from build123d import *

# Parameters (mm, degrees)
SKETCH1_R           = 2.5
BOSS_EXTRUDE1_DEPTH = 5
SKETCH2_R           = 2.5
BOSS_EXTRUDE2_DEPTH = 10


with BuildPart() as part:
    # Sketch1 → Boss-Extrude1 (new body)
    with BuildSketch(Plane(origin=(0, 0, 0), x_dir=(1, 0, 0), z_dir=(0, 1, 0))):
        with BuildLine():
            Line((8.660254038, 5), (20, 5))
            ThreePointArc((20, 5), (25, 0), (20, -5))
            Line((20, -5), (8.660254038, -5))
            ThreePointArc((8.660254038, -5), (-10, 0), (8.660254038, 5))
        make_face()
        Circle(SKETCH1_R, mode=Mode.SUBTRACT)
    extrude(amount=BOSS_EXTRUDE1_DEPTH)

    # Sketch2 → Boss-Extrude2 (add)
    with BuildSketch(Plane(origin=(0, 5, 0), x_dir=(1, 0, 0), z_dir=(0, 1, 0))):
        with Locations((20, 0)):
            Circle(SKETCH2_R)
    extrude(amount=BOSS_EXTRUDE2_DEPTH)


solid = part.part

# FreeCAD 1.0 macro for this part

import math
import FreeCAD as App
import Part
import Sketcher
Q = App.Units.Quantity

doc = App.newDocument("Part")
body = doc.addObject("PartDesign::Body", "Body")

# Sketch on XZ plane
sketch1 = body.newObject("Sketcher::SketchObject", "Sketch")
sketch1.AttachmentSupport = (doc.getObject("XZ_Plane"), [""])
sketch1.MapMode = "FlatFace"
sketch1.addGeometry(Part.LineSegment(App.Vector(20, -5, 0), App.Vector(8.7, -5, 0)), False)
sketch1.addGeometry(Part.ArcOfCircle(Part.Circle(App.Vector(0, 0, 0), App.Vector(0, 0, 1), 10), math.radians(30), math.radians(330)), False)
sketch1.addGeometry(Part.LineSegment(App.Vector(8.7, 5, 0), App.Vector(20, 5, 0)), False)
sketch1.addGeometry(Part.ArcOfCircle(Part.Circle(App.Vector(20, 0, 0), App.Vector(0, 0, 1), 5), math.radians(-90), math.radians(90)), False)
sketch1.addGeometry(Part.Circle(App.Vector(0, 0, 0), App.Vector(0, 0, 1), 2.5), False)
sketch1.addConstraint(Sketcher.Constraint("Coincident", 0, 2, 1, 2))
sketch1.addConstraint(Sketcher.Constraint("Coincident", 1, 1, 2, 1))
sketch1.addConstraint(Sketcher.Constraint("Tangent", 2, 2, 3, 2))
sketch1.addConstraint(Sketcher.Constraint("Tangent", 3, 1, 0, 1))
sketch1.addConstraint(Sketcher.Constraint("Horizontal", 0))
sketch1.addConstraint(Sketcher.Constraint("Horizontal", 2))
sketch1.addConstraint(Sketcher.Constraint("Coincident", 1, 3, -1, 1))
sketch1.addConstraint(Sketcher.Constraint("Coincident", 4, 3, -1, 1))
sketch1.addConstraint(Sketcher.Constraint("PointOnObject", 3, 3, -1))
sketch1.addConstraint(Sketcher.Constraint("Diameter", 4, Q("5 mm")))
sketch1.addConstraint(Sketcher.Constraint("Radius", 1, Q("10 mm")))
sketch1.addConstraint(Sketcher.Constraint("Radius", 3, Q("5 mm")))
sketch1.addConstraint(Sketcher.Constraint("DistanceX", -1, 1, 3, 3, Q("20 mm")))
pad1 = body.newObject("PartDesign::Pad", "Pad")
pad1.Profile = sketch1
pad1.Length = 5
pad1.Reversed = True

# Sketch on XZ plane
sketch2 = body.newObject("Sketcher::SketchObject", "Sketch001")
sketch2.AttachmentSupport = (doc.getObject("XZ_Plane"), [""])
sketch2.MapMode = "FlatFace"
sketch2.AttachmentOffset = App.Placement(App.Vector(0, 0, -5), App.Rotation())
sketch2.addGeometry(Part.Circle(App.Vector(20, 0, 0), App.Vector(0, 0, 1), 2.5), False)
sketch2.addConstraint(Sketcher.Constraint("PointOnObject", 0, 3, -1))
sketch2.addConstraint(Sketcher.Constraint("Diameter", 0, Q("5 mm")))
sketch2.addConstraint(Sketcher.Constraint("DistanceX", -1, 1, 0, 3, Q("20 mm")))
pad2 = body.newObject("PartDesign::Pad", "Pad001")
pad2.Profile = sketch2
pad2.Length = 10
pad2.Reversed = True

doc.recompute()
